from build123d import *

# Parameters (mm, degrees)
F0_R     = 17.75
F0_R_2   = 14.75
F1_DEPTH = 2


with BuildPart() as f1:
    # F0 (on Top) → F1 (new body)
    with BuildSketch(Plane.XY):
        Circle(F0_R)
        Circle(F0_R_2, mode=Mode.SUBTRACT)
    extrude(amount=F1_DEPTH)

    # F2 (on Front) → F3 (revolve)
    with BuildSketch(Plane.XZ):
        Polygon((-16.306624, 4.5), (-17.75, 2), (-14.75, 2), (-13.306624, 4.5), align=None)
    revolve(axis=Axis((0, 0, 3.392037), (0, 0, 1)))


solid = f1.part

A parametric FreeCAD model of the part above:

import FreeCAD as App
import Part
import Sketcher
Q = App.Units.Quantity


def add_polygon(sketch, points):
    """Adds a closed chain of lines whose ends are joined by coincident constraints."""
    first, n = sketch.GeometryCount, len(points)
    for a, b in zip(points, points[1:] + points[:1]):
        sketch.addGeometry(Part.LineSegment(App.Vector(*a, 0), App.Vector(*b, 0)), False)
    for i in range(n):
        sketch.addConstraint(Sketcher.Constraint("Coincident", first + i, 2, first + (i + 1) % n, 1))

doc = App.newDocument("Part")
body = doc.addObject("PartDesign::Body", "Body")

# Sketch on XY plane
sketch1 = doc.addObject("Sketcher::SketchObject", "Sketch")
body.addObject(sketch1)
sketch1.AttachmentSupport = (doc.XY_Plane, [""])
sketch1.MapMode = "FlatFace"
sketch1.addGeometry([
    Part.Circle(App.Vector(0, 0, 0), App.Vector(0, 0, 1), 18),
    Part.Circle(App.Vector(0, 0, 0), App.Vector(0, 0, 1), 15),
], False)
sketch1.addConstraint([
    Sketcher.Constraint("Coincident", 0, 3, -1, 1),
    Sketcher.Constraint("Coincident", 1, 3, -1, 1),
    Sketcher.Constraint("Diameter", 0, 35.5),
    Sketcher.Constraint("Diameter", 1, 29.5),
])
pad1 = doc.addObject("PartDesign::Pad", "Pad")
body.addObject(pad1)
pad1.Profile = sketch1
pad1.Length = 2

# Sketch on XZ plane
sketch2 = doc.addObject("Sketcher::SketchObject", "Sketch001")
body.addObject(sketch2)
sketch2.AttachmentSupport = (doc.XZ_Plane, [""])
sketch2.MapMode = "FlatFace"
add_polygon(sketch2, [(-16.3, 4.5), (-17.8, 2), (-14.8, 2), (-13.3, 4.5)])  # lines 0-3
sketch2.addConstraint([
    Sketcher.Constraint("Horizontal", 1),
    Sketcher.Constraint("Horizontal", 3),
    Sketcher.Constraint("Parallel", 0, 2),
    Sketcher.Constraint("DistanceX", 1, 1, 1, 2, 3.0),
    Sketcher.Constraint("Angle", 0, Q("-120.000006 deg")),
    Sketcher.Constraint("DistanceY", -1, 1, 0, 2, 2.0),
    Sketcher.Constraint("DistanceY", -1, 1, 2, 2, 4.5),
    Sketcher.Constraint("DistanceX", 0, 2, -1, 1, 17.75),
])
revolution = doc.addObject("PartDesign::Revolution", "Revolution")
body.addObject(revolution)
revolution.Profile = sketch2
revolution.ReferenceAxis = (sketch2, ["V_Axis"])
revolution.Angle = 360

doc.recompute()
